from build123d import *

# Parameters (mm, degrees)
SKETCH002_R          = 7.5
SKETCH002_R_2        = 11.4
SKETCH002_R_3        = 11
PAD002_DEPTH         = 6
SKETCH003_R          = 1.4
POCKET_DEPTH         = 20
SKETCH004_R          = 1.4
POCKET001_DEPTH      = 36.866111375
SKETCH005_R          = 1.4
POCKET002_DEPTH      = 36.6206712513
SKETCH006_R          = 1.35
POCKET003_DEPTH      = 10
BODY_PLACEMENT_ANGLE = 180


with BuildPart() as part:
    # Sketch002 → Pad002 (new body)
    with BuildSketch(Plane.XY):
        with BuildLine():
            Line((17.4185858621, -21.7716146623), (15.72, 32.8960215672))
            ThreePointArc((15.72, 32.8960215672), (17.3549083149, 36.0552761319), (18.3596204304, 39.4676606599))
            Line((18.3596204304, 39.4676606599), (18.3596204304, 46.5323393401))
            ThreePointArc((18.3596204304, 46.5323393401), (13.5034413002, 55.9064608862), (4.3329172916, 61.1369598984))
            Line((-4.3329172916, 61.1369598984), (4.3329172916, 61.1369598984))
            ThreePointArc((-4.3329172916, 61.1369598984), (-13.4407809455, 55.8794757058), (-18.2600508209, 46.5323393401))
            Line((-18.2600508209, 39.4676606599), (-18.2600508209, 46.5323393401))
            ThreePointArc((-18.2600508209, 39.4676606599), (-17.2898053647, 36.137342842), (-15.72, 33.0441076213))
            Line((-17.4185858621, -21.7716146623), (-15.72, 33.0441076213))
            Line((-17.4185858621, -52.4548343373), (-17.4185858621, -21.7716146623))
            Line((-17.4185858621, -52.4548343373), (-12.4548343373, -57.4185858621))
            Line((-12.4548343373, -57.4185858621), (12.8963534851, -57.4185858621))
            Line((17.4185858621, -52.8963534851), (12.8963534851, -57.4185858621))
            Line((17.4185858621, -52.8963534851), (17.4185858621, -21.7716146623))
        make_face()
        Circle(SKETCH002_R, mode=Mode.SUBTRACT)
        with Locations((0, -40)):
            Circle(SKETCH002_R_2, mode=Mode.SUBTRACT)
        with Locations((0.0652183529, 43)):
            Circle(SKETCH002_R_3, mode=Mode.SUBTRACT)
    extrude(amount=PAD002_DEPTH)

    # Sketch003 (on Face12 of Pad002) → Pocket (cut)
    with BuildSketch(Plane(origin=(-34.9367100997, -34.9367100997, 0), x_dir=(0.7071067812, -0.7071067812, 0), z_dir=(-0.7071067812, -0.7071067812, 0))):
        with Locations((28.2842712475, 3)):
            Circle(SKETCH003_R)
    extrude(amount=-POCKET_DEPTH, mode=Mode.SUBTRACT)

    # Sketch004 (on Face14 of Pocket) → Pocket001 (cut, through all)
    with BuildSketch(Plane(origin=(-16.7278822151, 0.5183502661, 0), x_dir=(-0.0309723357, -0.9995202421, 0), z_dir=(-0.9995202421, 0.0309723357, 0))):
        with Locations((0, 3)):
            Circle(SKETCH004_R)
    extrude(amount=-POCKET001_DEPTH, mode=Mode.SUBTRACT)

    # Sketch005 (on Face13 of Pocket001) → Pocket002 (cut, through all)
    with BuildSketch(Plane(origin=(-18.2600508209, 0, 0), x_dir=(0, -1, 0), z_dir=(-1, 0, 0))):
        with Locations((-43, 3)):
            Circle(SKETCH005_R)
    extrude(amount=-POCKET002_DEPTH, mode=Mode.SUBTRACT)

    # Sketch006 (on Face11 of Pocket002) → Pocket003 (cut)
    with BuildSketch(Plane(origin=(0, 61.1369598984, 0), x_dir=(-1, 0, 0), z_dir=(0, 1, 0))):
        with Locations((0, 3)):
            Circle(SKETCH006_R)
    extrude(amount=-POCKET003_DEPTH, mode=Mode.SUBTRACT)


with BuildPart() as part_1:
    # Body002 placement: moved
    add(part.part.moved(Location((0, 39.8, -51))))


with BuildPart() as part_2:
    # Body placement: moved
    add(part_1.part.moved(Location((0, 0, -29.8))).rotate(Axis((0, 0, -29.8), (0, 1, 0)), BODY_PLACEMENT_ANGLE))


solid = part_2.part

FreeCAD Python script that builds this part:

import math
import FreeCAD as App
import Part
import Sketcher
from FreeCAD import Vector
Q = App.Units.Quantity

doc = App.newDocument("Part")
body = doc.addObject("PartDesign::Body", "Body")

# Sketch on XY plane
sketch1 = body.newObject("Sketcher::SketchObject", "Sketch")
sketch1.AttachmentSupport = (doc.getObject("XY_Plane"), [""])
sketch1.MapMode = "FlatFace"
sketch1.addGeometry([
    Part.LineSegment(Vector(17, -22, 0), Vector(16, 33, 0)),  # 0
    Part.ArcOfCircle(Part.Circle(Vector(0, 43, 0), Vector(0, 0, 1), 19), math.radians(-33), math.radians(-11)),  # 1
    Part.LineSegment(Vector(18, 39, 0), Vector(18, 47, 0)),  # 2
    Part.ArcOfCircle(Part.Circle(Vector(0, 43, 0), Vector(0, 0, 1), 19), math.radians(11), math.radians(77)),  # 3
    Part.LineSegment(Vector(4, 61, 0), Vector(-4, 61, 0)),  # 4
    Part.ArcOfCircle(Part.Circle(Vector(0, 43, 0), Vector(0, 0, 1), 19), math.radians(104), math.radians(169)),  # 5
    Part.LineSegment(Vector(-18, 47, 0), Vector(-18, 39, 0)),  # 6
    Part.ArcOfCircle(Part.Circle(Vector(0, 43, 0), Vector(0, 0, 1), 19), math.radians(-169), math.radians(-148)),  # 7
    Part.LineSegment(Vector(-16, 33, 0), Vector(-17, -22, 0)),  # 8
    Part.LineSegment(Vector(-17, -22, 0), Vector(-17, -52, 0)),  # 9
    Part.LineSegment(Vector(-17, -52, 0), Vector(-12, -57, 0)),  # 10
    Part.LineSegment(Vector(-12, -57, 0), Vector(13, -57, 0)),  # 11
    Part.LineSegment(Vector(13, -57, 0), Vector(17, -53, 0)),  # 12
    Part.LineSegment(Vector(17, -53, 0), Vector(17, -22, 0)),  # 13
    Part.Circle(Vector(0, -40, 0), Vector(0, 0, 1), 11),  # 14
    Part.Circle(Vector(0, 0, 0), Vector(0, 0, 1), 8),  # 15
    Part.Circle(Vector(0, 43, 0), Vector(0, 0, 1), 11),  # 16
], False)
sketch1.addConstraint([
    Sketcher.Constraint("Coincident", 0, 2, 1, 1),
    Sketcher.Constraint("Coincident", 1, 2, 2, 1),
    Sketcher.Constraint("Coincident", 2, 2, 3, 1),
    Sketcher.Constraint("Coincident", 3, 2, 4, 1),
    Sketcher.Constraint("Coincident", 4, 2, 5, 1),
    Sketcher.Constraint("Coincident", 5, 2, 6, 1),
    Sketcher.Constraint("Coincident", 6, 2, 7, 1),
    Sketcher.Constraint("Coincident", 7, 2, 8, 1),
    Sketcher.Constraint("Coincident", 8, 2, 9, 1),
    Sketcher.Constraint("Coincident", 9, 2, 10, 1),
    Sketcher.Constraint("Coincident", 10, 2, 11, 1),
    Sketcher.Constraint("Coincident", 11, 2, 12, 1),
    Sketcher.Constraint("Coincident", 12, 2, 13, 1),
    Sketcher.Constraint("Coincident", 13, 2, 0, 1),
    Sketcher.Constraint("Vertical", 2),
    Sketcher.Constraint("Horizontal", 4),
    Sketcher.Constraint("Vertical", 6),
    Sketcher.Constraint("Vertical", 9),
    Sketcher.Constraint("Horizontal", 11),
    Sketcher.Constraint("Vertical", 13),
    Sketcher.Constraint("Coincident", 15, 3, -1, 1),
    Sketcher.Constraint("Coincident", 3, 3, 1, 3),
    Sketcher.Constraint("Coincident", 5, 3, 1, 3),
    Sketcher.Constraint("Coincident", 7, 3, 1, 3),
    Sketcher.Constraint("Coincident", 16, 3, 1, 3),
    Sketcher.Constraint("Equal", 1, 3),
    Sketcher.Constraint("Equal", 5, 7),
    Sketcher.Constraint("Symmetric", 8, 2, 13, 2, -2),
    Sketcher.Constraint("PointOnObject", 14, 3, -2),
    Sketcher.Constraint("Perpendicular", 10, 12),
    Sketcher.Constraint("Horizontal", 2, 2, 5, 2),
    Sketcher.Constraint("Diameter", 15, Q("15 mm")),
    Sketcher.Constraint("Diameter", 16, Q("22 mm")),
    Sketcher.Constraint("Diameter", 14, Q("22.8 mm")),
    Sketcher.Constraint("Angle", 10, Q("-45 deg")),
    Sketcher.Constraint("DistanceY", -1, 1, 1, 3, Q("43 mm")),
    Sketcher.Constraint("DistanceY", 14, 3, -1, 1, Q("40 mm")),
    Sketcher.Constraint("Radius", 1, Q("18.632299 mm")),
    Sketcher.Constraint("DistanceX", -1, 1, 0, 2, Q("15.72 mm")),
    Sketcher.Constraint("DistanceX", 7, 2, -1, 1, Q("15.72 mm")),
    Sketcher.Constraint("Radius", 5, Q("18.662607 mm")),
    Sketcher.Constraint("DistanceY", 2, 1, 2, 2, Q("7.064679 mm")),
    Sketcher.Constraint("DistanceY", 9, 2, 9, 1, Q("30.68322 mm")),
    Sketcher.Constraint("DistanceY", 13, 1, 13, 2, Q("31.124739 mm")),
    Sketcher.Constraint("DistanceX", 1, 3, 3, 2, Q("4.267699 mm")),
    Sketcher.Constraint("Distance", 0, Q("54.694018 mm")),
    Sketcher.Constraint("DistanceX", 11, 1, 11, 2, Q("25.351188 mm")),
    Sketcher.Constraint("DistanceX", -1, 1, 1, 3, Q("0.065218 mm")),
    Sketcher.Constraint("DistanceX", 9, 2, 10, 2, Q("4.963752 mm")),
])
pad1 = body.newObject("PartDesign::Pad", "Pad")
pad1.Profile = sketch1
pad1.Length = 6

# Sketch on an angled plane
sketch2 = body.newObject("Sketcher::SketchObject", "Sketch001")
sketch2.Placement = App.Placement(Vector(-34.93671, -34.93671, 0), App.Rotation(Vector(0.707106781, -0.707106781, 0), Vector(0, 0, 0.999999999), Vector(-0.707106781, -0.707106781, 0), "ZXY"))
sketch2.addGeometry(Part.Circle(Vector(28.3, 3, 0), Vector(0, 0, 1), 1.4), False)
sketch2.addConstraint([
    Sketcher.Constraint("Diameter", 0, Q("2.8 mm")),
    Sketcher.Constraint("DistanceY", -1, 1, 0, 3, Q("3 mm")),
    Sketcher.Constraint("DistanceX", -1, 1, 0, 3, Q("28.284271 mm")),
])
pocket1 = body.newObject("PartDesign::Pocket", "Pocket")
pocket1.Profile = sketch2
pocket1.Length = 20

# Sketch on an angled plane
sketch3 = body.newObject("Sketcher::SketchObject", "Sketch002")
sketch3.Placement = App.Placement(Vector(-16.727882, 0.51835, 0), App.Rotation(Vector(-0.030972336, -0.999520242, 0), Vector(0, 0, 1), Vector(-0.999520242, 0.030972336, 0), "ZXY"))
sketch3.addGeometry(Part.Circle(Vector(0, 3, 0), Vector(0, 0, 1), 1.4), False)
sketch3.addConstraint([
    Sketcher.Constraint("PointOnObject", 0, 3, -2),
    Sketcher.Constraint("Diameter", 0, Q("2.8 mm")),
    Sketcher.Constraint("DistanceY", -1, 1, 0, 3, Q("3 mm")),
])
pocket2 = body.newObject("PartDesign::Pocket", "Pocket001")
pocket2.Profile = sketch3
pocket2.Type = "ThroughAll"

# Sketch on YZ plane
sketch4 = body.newObject("Sketcher::SketchObject", "Sketch003")
sketch4.AttachmentSupport = (doc.getObject("YZ_Plane"), [""])
sketch4.MapMode = "FlatFace"
sketch4.AttachmentOffset = App.Placement(Vector(0, 0, -18.260051), App.Rotation())
sketch4.addGeometry(Part.Circle(Vector(43, 3, 0), Vector(0, 0, 1), 1.4), False)
sketch4.addConstraint([
    Sketcher.Constraint("Diameter", 0, Q("2.8 mm")),
    Sketcher.Constraint("DistanceX", -1, 1, 0, 3, Q("43 mm")),
    Sketcher.Constraint("DistanceY", -1, 1, 0, 3, Q("3 mm")),
])
pocket3 = body.newObject("PartDesign::Pocket", "Pocket002")
pocket3.Profile = sketch4
pocket3.Type = "ThroughAll"
pocket3.Reversed = True

# Sketch on XZ plane
sketch5 = body.newObject("Sketcher::SketchObject", "Sketch004")
sketch5.AttachmentSupport = (doc.getObject("XZ_Plane"), [""])
sketch5.MapMode = "FlatFace"
sketch5.AttachmentOffset = App.Placement(Vector(0, 0, -61.13696), App.Rotation())
sketch5.addGeometry(Part.Circle(Vector(0, 3, 0), Vector(0, 0, 1), 1.4), False)
sketch5.addConstraint([
    Sketcher.Constraint("PointOnObject", 0, 3, -2),
    Sketcher.Constraint("Diameter", 0, Q("2.7 mm")),
    Sketcher.Constraint("DistanceY", -1, 1, 0, 3, Q("3 mm")),
])
pocket4 = body.newObject("PartDesign::Pocket", "Pocket003")
pocket4.Profile = sketch5
pocket4.Length = 10
pocket4.Reversed = True
body2 = doc.addObject("PartDesign::Body", "Body001")
doc.recompute()

body.Placement = App.Placement(Vector(0, 39.8, -51), App.Rotation(Vector(0, 0, 1), 0))
boolean = body2.newObject("PartDesign::Boolean", "Boolean")
boolean.Type = "Fuse"
boolean.addObjects([body])
body3 = doc.addObject("PartDesign::Body", "Body002")
doc.recompute()

body2.Placement = App.Placement(Vector(0, 0, -29.8), App.Rotation(Vector(0, 1, 0), 180))
boolean2 = body3.newObject("PartDesign::Boolean", "Boolean001")
boolean2.Type = "Fuse"
boolean2.addObjects([body2])

doc.recompute()
